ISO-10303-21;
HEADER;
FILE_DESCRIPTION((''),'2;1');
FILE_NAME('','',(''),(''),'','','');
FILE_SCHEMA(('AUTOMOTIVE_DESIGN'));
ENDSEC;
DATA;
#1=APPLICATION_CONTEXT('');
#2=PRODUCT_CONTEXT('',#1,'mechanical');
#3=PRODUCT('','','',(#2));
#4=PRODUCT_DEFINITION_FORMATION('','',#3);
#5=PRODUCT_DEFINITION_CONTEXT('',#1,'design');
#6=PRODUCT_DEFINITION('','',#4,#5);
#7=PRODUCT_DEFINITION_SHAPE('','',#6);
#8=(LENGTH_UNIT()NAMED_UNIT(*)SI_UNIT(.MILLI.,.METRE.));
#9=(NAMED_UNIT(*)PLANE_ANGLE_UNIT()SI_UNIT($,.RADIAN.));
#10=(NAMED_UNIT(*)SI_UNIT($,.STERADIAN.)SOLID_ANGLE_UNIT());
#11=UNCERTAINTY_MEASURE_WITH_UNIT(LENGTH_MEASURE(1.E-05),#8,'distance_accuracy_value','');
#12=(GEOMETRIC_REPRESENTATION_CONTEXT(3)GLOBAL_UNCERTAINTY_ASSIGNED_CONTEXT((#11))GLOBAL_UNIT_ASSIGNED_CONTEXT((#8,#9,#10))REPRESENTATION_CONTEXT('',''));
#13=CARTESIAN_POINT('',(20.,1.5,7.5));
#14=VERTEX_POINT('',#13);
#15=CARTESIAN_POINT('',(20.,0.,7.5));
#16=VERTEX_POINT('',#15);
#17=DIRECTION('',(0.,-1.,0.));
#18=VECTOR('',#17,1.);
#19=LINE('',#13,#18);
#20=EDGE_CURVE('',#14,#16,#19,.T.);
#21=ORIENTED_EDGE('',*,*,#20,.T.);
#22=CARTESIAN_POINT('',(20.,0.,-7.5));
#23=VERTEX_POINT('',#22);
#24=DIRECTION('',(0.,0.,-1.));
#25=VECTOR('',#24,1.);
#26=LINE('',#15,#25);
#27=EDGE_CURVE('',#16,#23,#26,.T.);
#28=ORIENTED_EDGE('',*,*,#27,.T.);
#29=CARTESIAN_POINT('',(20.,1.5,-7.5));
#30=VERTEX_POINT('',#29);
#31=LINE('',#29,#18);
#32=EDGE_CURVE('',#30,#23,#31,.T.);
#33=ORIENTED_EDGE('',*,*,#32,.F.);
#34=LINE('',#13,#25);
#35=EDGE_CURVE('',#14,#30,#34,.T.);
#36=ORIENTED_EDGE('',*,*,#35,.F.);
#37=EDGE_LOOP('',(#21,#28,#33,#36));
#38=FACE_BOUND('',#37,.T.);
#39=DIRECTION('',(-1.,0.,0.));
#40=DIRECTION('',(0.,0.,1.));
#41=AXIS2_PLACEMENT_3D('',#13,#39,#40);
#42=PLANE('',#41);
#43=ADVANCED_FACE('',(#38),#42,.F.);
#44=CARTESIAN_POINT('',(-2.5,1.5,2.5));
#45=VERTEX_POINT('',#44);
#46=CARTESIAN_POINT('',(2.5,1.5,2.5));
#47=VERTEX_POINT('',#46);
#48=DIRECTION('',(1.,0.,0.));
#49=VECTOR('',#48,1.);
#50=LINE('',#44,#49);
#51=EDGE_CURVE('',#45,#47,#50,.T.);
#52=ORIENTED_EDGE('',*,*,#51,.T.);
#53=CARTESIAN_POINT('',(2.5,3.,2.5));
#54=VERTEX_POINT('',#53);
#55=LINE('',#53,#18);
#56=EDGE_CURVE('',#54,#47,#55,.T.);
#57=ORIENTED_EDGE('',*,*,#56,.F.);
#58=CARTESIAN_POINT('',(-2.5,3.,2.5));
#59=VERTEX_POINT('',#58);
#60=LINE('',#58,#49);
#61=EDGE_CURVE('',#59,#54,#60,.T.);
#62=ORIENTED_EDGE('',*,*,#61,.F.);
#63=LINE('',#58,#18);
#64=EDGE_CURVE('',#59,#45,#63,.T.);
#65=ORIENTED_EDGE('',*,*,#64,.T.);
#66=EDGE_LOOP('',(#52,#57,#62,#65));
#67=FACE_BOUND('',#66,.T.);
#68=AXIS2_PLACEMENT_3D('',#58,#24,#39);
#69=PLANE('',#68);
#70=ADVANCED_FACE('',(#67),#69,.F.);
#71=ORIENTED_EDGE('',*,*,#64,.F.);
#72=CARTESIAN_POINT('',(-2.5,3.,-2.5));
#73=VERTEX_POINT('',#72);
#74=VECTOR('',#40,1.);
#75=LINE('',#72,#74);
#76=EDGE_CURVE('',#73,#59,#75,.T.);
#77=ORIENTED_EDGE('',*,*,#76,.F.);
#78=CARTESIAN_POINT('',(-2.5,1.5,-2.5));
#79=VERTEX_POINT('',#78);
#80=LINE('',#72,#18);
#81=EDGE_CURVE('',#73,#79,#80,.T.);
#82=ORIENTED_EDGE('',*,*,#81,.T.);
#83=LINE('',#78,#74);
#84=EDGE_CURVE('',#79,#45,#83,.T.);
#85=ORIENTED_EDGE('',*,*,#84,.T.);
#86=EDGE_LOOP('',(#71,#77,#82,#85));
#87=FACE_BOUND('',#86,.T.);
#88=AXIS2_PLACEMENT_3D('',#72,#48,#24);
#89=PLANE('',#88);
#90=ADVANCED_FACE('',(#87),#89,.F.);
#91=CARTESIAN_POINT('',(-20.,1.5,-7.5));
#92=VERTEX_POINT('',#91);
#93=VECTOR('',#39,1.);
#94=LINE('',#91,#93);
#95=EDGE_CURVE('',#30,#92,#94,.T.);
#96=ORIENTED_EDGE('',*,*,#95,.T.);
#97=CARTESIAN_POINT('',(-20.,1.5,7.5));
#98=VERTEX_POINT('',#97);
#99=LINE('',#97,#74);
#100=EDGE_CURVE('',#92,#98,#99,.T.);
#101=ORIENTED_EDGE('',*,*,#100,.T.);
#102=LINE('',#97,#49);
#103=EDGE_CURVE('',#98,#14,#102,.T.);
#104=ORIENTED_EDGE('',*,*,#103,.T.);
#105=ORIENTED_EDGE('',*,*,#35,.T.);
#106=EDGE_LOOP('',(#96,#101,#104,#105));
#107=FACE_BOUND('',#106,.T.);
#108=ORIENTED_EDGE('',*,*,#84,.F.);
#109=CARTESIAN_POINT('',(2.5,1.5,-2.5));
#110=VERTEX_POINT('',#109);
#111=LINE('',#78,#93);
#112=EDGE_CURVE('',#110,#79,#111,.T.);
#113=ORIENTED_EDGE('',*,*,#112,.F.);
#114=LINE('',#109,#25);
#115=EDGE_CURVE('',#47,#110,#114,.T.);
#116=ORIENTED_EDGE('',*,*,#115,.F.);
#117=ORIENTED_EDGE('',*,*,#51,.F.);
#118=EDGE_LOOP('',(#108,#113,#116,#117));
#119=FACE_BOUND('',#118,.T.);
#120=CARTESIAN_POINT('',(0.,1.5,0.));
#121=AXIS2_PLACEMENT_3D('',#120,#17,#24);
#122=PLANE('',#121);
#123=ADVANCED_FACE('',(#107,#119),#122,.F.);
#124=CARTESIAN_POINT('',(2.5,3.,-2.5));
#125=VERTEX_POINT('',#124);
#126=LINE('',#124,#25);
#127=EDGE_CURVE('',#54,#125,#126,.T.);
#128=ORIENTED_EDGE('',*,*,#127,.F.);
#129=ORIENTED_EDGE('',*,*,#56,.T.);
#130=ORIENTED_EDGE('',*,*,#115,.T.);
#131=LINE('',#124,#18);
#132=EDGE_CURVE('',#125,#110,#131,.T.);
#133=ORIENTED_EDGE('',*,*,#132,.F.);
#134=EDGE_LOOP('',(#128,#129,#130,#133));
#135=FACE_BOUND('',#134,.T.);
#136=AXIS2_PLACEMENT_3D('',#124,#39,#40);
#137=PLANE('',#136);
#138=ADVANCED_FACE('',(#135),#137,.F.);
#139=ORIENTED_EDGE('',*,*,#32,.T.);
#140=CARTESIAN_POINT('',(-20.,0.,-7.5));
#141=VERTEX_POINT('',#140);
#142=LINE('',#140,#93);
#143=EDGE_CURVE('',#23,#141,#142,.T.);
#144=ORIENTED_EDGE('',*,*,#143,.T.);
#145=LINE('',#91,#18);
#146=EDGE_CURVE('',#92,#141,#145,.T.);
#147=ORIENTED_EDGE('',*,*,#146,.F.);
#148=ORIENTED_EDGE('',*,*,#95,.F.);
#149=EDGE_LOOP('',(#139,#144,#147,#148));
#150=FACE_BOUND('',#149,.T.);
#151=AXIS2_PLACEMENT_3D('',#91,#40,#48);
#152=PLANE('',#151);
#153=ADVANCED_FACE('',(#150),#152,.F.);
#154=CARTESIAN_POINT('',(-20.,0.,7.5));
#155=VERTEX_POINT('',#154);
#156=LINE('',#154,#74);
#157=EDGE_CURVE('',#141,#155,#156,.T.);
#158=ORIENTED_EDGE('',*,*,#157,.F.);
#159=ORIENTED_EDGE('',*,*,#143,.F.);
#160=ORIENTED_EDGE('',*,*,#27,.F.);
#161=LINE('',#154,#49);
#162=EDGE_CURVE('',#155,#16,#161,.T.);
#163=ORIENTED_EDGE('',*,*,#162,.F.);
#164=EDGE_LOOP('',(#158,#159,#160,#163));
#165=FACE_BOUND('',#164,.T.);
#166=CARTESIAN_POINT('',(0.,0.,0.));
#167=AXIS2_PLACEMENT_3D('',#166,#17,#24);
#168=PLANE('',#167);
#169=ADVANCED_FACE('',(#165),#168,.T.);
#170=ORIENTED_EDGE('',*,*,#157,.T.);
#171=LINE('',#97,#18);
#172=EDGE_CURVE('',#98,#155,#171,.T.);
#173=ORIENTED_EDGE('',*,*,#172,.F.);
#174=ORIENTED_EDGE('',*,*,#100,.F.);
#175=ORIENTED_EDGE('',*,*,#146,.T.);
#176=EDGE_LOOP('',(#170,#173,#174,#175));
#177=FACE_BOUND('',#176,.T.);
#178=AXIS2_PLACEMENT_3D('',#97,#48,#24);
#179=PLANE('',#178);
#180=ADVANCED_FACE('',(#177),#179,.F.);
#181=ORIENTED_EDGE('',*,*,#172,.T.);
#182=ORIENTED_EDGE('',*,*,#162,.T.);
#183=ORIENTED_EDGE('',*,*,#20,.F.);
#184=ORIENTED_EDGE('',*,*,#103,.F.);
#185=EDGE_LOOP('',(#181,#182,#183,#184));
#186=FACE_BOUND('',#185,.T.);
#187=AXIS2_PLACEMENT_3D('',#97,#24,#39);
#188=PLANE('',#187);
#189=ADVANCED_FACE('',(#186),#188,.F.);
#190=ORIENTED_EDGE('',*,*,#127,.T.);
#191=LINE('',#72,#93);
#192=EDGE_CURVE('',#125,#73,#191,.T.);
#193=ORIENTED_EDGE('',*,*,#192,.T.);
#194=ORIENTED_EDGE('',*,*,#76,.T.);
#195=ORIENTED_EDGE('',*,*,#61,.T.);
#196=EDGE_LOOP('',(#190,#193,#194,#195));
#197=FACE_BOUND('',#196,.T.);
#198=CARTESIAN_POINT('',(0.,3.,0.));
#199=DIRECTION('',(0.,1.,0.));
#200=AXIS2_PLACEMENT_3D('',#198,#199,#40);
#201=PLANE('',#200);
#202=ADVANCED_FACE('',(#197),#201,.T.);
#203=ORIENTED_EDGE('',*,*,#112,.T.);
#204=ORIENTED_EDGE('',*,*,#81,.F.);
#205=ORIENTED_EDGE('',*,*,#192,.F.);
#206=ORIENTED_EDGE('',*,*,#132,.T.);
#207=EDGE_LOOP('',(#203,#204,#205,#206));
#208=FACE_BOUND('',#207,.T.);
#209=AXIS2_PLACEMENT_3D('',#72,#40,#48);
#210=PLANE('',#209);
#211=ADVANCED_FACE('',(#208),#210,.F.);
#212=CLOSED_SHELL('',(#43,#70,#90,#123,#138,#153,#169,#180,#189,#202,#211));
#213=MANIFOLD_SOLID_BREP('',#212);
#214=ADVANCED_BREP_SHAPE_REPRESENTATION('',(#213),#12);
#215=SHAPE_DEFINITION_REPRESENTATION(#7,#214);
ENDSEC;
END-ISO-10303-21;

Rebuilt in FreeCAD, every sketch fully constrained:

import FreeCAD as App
import Part
import Sketcher
from FreeCAD import Vector
Q = App.Units.Quantity

doc = App.newDocument("Part")
body = doc.addObject("PartDesign::Body", "Body")

sketch1 = body.newObject("Sketcher::SketchObject", "Sketch")
sketch1.AttachmentSupport = (doc.getObject("XZ_Plane"), [""])
sketch1.MapMode = "FlatFace"
sketch1.addGeometry([
    Part.LineSegment(Vector(-20, -8, 0), Vector(-20, 8, 0)),
    Part.LineSegment(Vector(-20, 8, 0), Vector(20, 8, 0)),
    Part.LineSegment(Vector(20, 8, 0), Vector(20, -8, 0)),
    Part.LineSegment(Vector(20, -8, 0), Vector(-20, -8, 0)),
], False)
sketch1.addConstraint([
    Sketcher.Constraint("Coincident", 0, 2, 1, 1),
    Sketcher.Constraint("Coincident", 1, 2, 2, 1),
    Sketcher.Constraint("Coincident", 2, 2, 3, 1),
    Sketcher.Constraint("Coincident", 3, 2, 0, 1),
    Sketcher.Constraint("Vertical", 0),
    Sketcher.Constraint("Horizontal", 1),
    Sketcher.Constraint("Vertical", 2),
    Sketcher.Constraint("Horizontal", 3),
    Sketcher.Constraint("Symmetric", 0, 2, 2, 2, -1, 1),
    Sketcher.Constraint("DistanceX", 1, 1, 1, 2, Q("40 mm")),
    Sketcher.Constraint("DistanceY", 0, 1, 0, 2, Q("15 mm")),
])
pad1 = body.newObject("PartDesign::Pad", "Pad")
pad1.Profile = sketch1
pad1.Length = 1.5
pad1.Reversed = True

sketch2 = body.newObject("Sketcher::SketchObject", "Sketch001")
sketch2.AttachmentSupport = (doc.getObject("XZ_Plane"), [""])
sketch2.MapMode = "FlatFace"
sketch2.AttachmentOffset = App.Placement(Vector(0, 0, -1.5), App.Rotation())
sketch2.addGeometry([
    Part.LineSegment(Vector(-2, -2, 0), Vector(-2, 2, 0)),
    Part.LineSegment(Vector(-2, 2, 0), Vector(2, 2, 0)),
    Part.LineSegment(Vector(2, 2, 0), Vector(2, -2, 0)),
    Part.LineSegment(Vector(2, -2, 0), Vector(-2, -2, 0)),
], False)
sketch2.addConstraint([
    Sketcher.Constraint("Coincident", 0, 2, 1, 1),
    Sketcher.Constraint("Coincident", 1, 2, 2, 1),
    Sketcher.Constraint("Coincident", 2, 2, 3, 1),
    Sketcher.Constraint("Coincident", 3, 2, 0, 1),
    Sketcher.Constraint("Vertical", 0),
    Sketcher.Constraint("Horizontal", 1),
    Sketcher.Constraint("Vertical", 2),
    Sketcher.Constraint("Horizontal", 3),
    Sketcher.Constraint("Symmetric", 0, 2, 2, 2, -1, 1),
    Sketcher.Constraint("Equal", 3, 0),
    Sketcher.Constraint("DistanceX", 1, 1, 1, 2, Q("5 mm")),
])
pad2 = body.newObject("PartDesign::Pad", "Pad001")
pad2.Profile = sketch2
pad2.Length = 1.5
pad2.Reversed = True

doc.recompute()
